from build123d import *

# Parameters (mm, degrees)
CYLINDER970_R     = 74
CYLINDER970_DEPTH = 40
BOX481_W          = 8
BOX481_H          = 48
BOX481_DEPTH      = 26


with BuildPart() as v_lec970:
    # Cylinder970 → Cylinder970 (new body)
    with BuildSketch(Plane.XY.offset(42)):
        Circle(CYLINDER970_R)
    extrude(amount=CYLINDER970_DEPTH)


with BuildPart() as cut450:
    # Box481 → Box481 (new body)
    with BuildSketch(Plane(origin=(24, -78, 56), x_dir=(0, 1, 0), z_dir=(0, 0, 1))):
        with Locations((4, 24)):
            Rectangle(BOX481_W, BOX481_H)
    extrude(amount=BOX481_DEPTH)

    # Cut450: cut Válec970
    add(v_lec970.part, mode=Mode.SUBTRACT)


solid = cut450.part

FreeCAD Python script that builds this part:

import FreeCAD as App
import Part
import Sketcher

V = App.Vector

doc = App.newDocument("Part")
body = doc.addObject("PartDesign::Body", "Body")

# Sketch on XY plane
sketch1 = body.newObject("Sketcher::SketchObject", "Sketch")
sketch1.AttachmentSupport = (doc.getObject("XY_Plane"), [""])
sketch1.MapMode = "FlatFace"
sketch1.AttachmentOffset = App.Placement(V(0, 0, 42), App.Rotation())
sketch1.addGeometry(Part.Circle(V(0, 0, 0), V(0, 0, 1), 74), False)
sketch1.addConstraint(Sketcher.Constraint("Coincident", 0, 3, -1, 1))
sketch1.addConstraint(Sketcher.Constraint("Diameter", 0, 148.0))
pad1 = body.newObject("PartDesign::Pad", "Pad")
pad1.Profile = sketch1
pad1.Length = 40
body2 = doc.addObject("PartDesign::Body", "Body001")

# Sketch on XY plane
sketch2 = body2.newObject("Sketcher::SketchObject", "Sketch001")
sketch2.AttachmentSupport = (doc.getObject("XY_Plane001"), [""])
sketch2.MapMode = "FlatFace"
sketch2.AttachmentOffset = App.Placement(V(0, 0, 56), App.Rotation())
sketch2.addGeometry(Part.LineSegment(V(-24, -78, 0), V(24, -78, 0)), False)
sketch2.addGeometry(Part.LineSegment(V(24, -78, 0), V(24, -70, 0)), False)
sketch2.addGeometry(Part.LineSegment(V(24, -70, 0), V(-24, -70, 0)), False)
sketch2.addGeometry(Part.LineSegment(V(-24, -70, 0), V(-24, -78, 0)), False)
sketch2.addConstraint(Sketcher.Constraint("Coincident", 0, 2, 1, 1))
sketch2.addConstraint(Sketcher.Constraint("Coincident", 1, 2, 2, 1))
sketch2.addConstraint(Sketcher.Constraint("Coincident", 2, 2, 3, 1))
sketch2.addConstraint(Sketcher.Constraint("Coincident", 3, 2, 0, 1))
sketch2.addConstraint(Sketcher.Constraint("Horizontal", 0))
sketch2.addConstraint(Sketcher.Constraint("Vertical", 1))
sketch2.addConstraint(Sketcher.Constraint("Horizontal", 2))
sketch2.addConstraint(Sketcher.Constraint("Vertical", 3))
sketch2.addConstraint(Sketcher.Constraint("DistanceX", 0, 1, 0, 2, 48.0))
sketch2.addConstraint(Sketcher.Constraint("DistanceY", 1, 1, 1, 2, 8.0))
sketch2.addConstraint(Sketcher.Constraint("DistanceX", -1, 1, 0, 2, 24.0))
sketch2.addConstraint(Sketcher.Constraint("DistanceY", 0, 2, -1, 1, 78.0))
pad2 = body2.newObject("PartDesign::Pad", "Pad001")
pad2.Profile = sketch2
pad2.Length = 26
doc.recompute()

boolean = body2.newObject("PartDesign::Boolean", "Boolean")
boolean.Type = "Cut"
boolean.addObjects([body])

doc.recompute()
